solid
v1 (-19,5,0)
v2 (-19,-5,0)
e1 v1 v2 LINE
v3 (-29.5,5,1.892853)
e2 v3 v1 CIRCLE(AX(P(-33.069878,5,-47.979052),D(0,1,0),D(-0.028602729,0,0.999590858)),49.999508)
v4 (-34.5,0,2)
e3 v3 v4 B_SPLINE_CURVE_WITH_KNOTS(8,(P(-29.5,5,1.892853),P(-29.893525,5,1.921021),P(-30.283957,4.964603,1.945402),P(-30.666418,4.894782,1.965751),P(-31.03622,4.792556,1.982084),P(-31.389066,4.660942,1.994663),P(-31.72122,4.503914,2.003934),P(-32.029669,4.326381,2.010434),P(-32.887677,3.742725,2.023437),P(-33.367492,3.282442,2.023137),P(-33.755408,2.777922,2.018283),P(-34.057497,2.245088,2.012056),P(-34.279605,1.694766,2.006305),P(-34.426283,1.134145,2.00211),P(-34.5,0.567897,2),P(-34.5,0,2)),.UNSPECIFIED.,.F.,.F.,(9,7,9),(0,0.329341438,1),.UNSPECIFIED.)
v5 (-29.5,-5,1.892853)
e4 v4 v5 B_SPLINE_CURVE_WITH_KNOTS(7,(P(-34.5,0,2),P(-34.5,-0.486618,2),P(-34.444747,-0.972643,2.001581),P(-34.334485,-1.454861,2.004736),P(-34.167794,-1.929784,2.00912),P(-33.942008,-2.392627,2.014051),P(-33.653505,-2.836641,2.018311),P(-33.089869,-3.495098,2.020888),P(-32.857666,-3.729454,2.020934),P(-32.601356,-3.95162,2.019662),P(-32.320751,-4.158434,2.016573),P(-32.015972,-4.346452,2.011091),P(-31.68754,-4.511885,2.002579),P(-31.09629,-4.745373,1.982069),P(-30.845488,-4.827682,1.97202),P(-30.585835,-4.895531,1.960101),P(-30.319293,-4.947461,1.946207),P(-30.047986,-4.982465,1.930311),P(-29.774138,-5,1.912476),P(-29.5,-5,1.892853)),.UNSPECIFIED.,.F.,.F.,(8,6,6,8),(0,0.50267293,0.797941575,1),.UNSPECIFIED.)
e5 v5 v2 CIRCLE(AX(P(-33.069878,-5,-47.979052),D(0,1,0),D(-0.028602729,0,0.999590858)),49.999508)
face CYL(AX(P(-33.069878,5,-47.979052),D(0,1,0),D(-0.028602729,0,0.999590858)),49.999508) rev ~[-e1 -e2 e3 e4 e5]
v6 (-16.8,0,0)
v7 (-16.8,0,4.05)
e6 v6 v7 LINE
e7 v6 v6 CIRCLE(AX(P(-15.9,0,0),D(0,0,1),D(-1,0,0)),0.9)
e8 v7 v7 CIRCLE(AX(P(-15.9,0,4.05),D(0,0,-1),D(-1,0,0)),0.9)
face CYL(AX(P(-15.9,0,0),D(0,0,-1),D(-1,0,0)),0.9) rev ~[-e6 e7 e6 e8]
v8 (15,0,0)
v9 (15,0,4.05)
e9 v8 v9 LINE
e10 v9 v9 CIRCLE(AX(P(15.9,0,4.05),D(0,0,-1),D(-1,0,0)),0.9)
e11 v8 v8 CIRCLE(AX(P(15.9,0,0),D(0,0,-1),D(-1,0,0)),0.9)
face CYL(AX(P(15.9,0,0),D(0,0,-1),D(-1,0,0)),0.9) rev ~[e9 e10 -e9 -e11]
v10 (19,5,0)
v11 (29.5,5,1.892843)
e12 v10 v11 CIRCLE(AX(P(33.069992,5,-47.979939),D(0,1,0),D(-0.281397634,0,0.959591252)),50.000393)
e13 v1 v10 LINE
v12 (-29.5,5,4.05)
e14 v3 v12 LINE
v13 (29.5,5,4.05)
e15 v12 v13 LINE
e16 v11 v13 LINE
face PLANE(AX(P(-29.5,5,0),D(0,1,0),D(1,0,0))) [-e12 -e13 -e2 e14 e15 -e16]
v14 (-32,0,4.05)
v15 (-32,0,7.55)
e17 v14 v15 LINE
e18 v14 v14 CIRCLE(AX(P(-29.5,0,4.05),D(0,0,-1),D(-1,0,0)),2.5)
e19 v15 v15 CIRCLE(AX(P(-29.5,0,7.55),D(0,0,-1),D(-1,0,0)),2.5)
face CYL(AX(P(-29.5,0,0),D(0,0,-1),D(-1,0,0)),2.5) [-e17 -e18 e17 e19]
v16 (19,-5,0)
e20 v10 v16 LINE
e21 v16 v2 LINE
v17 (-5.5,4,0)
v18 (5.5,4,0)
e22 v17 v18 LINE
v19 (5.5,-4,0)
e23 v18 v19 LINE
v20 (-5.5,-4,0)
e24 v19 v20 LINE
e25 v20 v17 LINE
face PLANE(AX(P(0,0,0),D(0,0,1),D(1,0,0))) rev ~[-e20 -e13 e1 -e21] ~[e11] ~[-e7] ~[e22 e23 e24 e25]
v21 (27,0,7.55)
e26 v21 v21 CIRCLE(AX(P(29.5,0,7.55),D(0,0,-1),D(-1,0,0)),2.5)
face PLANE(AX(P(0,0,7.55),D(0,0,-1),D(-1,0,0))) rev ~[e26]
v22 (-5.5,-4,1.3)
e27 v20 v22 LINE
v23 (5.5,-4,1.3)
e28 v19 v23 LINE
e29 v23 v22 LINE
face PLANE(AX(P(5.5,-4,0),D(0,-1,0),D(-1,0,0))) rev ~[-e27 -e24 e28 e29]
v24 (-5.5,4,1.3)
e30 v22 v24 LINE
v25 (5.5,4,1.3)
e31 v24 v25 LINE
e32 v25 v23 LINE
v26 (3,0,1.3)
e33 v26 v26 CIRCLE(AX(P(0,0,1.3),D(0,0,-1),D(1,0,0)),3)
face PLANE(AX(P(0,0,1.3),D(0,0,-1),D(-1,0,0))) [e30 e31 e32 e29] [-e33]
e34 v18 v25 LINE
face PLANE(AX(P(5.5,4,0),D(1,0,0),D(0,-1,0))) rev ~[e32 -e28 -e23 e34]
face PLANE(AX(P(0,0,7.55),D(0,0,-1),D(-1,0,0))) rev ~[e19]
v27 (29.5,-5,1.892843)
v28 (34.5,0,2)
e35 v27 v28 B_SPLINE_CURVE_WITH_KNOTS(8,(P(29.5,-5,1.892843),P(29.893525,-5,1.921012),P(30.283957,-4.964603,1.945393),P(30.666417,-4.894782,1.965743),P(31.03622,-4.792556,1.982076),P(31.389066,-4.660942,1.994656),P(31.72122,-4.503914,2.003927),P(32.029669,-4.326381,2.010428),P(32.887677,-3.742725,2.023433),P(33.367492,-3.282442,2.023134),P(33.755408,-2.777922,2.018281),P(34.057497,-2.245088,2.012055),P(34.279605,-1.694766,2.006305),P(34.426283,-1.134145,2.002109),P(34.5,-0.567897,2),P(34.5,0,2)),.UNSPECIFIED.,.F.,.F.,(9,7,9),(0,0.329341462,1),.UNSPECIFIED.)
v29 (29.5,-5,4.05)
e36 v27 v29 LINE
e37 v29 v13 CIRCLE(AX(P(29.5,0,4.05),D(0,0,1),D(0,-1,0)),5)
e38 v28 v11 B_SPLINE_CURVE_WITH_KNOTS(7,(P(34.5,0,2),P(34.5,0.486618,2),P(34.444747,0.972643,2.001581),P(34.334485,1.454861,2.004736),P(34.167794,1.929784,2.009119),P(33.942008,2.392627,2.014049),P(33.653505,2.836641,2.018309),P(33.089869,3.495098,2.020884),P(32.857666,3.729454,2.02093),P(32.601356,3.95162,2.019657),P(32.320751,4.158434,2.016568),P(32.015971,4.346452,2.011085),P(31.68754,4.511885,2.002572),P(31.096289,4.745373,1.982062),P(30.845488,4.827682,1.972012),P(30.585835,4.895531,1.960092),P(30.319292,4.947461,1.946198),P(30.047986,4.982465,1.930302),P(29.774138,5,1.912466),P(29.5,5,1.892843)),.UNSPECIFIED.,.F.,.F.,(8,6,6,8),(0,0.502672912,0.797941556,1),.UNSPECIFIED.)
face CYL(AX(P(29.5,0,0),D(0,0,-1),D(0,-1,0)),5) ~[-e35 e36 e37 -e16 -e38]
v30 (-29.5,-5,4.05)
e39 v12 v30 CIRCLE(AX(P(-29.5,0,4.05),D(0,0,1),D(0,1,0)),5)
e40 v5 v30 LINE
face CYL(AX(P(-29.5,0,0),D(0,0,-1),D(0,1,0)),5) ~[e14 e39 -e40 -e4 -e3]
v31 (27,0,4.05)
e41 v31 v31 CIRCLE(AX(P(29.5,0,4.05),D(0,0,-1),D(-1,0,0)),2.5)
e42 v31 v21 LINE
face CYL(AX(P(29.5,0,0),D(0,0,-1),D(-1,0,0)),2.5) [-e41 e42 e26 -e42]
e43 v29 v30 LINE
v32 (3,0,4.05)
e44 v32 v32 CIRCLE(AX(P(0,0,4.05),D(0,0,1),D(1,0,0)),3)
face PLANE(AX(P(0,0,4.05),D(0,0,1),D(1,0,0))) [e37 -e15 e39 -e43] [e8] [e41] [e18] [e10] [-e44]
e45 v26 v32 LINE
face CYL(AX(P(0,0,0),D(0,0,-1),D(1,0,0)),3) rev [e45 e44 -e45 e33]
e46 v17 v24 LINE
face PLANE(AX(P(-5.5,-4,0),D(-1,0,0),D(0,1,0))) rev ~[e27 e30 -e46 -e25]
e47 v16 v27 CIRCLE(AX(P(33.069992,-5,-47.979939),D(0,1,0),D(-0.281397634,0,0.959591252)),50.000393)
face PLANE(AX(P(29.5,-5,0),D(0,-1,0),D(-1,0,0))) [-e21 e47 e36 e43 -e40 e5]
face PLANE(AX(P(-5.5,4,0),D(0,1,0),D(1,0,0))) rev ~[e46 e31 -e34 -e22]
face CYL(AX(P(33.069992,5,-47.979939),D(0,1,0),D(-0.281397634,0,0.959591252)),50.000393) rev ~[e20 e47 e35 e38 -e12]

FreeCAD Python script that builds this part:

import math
import FreeCAD as App
import Part
import Sketcher
from FreeCAD import Vector
Q = App.Units.Quantity

doc = App.newDocument("Part")
body = doc.addObject("PartDesign::Body", "Body")

# Sketch on XY plane
sketch1 = body.newObject("Sketcher::SketchObject", "Sketch")
sketch1.AttachmentSupport = (doc.getObject("XY_Plane"), [""])
sketch1.MapMode = "FlatFace"
sketch1.addGeometry(Part.LineSegment(Vector(29.5, 5, 0), Vector(-29.5, 5, 0)), False)
sketch1.addGeometry(Part.ArcOfCircle(Part.Circle(Vector(-29.5, 0, 0), Vector(0, 0, 1), 5), math.radians(90), math.radians(270)), False)
sketch1.addGeometry(Part.LineSegment(Vector(-29.5, -5, 0), Vector(29.5, -5, 0)), False)
sketch1.addGeometry(Part.ArcOfCircle(Part.Circle(Vector(29.5, 0, 0), Vector(0, 0, 1), 5), math.radians(-90), math.radians(90)), False)
sketch1.addGeometry(Part.Circle(Vector(-29.5, 0, 0), Vector(0, 0, 1), 2.5), False)
sketch1.addGeometry(Part.Circle(Vector(0, 0, 0), Vector(0, 0, 1), 3), False)
sketch1.addGeometry(Part.Circle(Vector(29.5, 0, 0), Vector(0, 0, 1), 2.5), False)
sketch1.addConstraint(Sketcher.Constraint("Tangent", 0, 2, 1, 1))
sketch1.addConstraint(Sketcher.Constraint("Tangent", 1, 2, 2, 1))
sketch1.addConstraint(Sketcher.Constraint("Tangent", 2, 2, 3, 1))
sketch1.addConstraint(Sketcher.Constraint("Tangent", 3, 2, 0, 1))
sketch1.addConstraint(Sketcher.Constraint("Horizontal", 0))
sketch1.addConstraint(Sketcher.Constraint("Horizontal", 2))
sketch1.addConstraint(Sketcher.Constraint("Coincident", 5, 3, -1, 1))
sketch1.addConstraint(Sketcher.Constraint("Coincident", 4, 3, 1, 3))
sketch1.addConstraint(Sketcher.Constraint("Coincident", 6, 3, 3, 3))
sketch1.addConstraint(Sketcher.Constraint("Equal", 4, 6))
sketch1.addConstraint(Sketcher.Constraint("Symmetric", 1, 3, 3, 3, -1, 1))
sketch1.addConstraint(Sketcher.Constraint("Diameter", 4, Q("5 mm")))
sketch1.addConstraint(Sketcher.Constraint("Diameter", 5, Q("6 mm")))
sketch1.addConstraint(Sketcher.Constraint("Radius", 1, Q("5 mm")))
sketch1.addConstraint(Sketcher.Constraint("DistanceX", 1, 3, -1, 1, Q("29.5 mm")))
pad1 = body.newObject("PartDesign::Pad", "Pad")
pad1.Profile = sketch1
pad1.Length = 4.05

# Sketch on XY plane
sketch2 = body.newObject("Sketcher::SketchObject", "Sketch001")
sketch2.AttachmentSupport = (doc.getObject("XY_Plane"), [""])
sketch2.MapMode = "FlatFace"
sketch2.addGeometry(Part.LineSegment(Vector(5.5, 4, 0), Vector(5.5, -4, 0)), False)
sketch2.addGeometry(Part.LineSegment(Vector(5.5, -4, 0), Vector(-5.5, -4, 0)), False)
sketch2.addGeometry(Part.LineSegment(Vector(-5.5, -4, 0), Vector(-5.5, 4, 0)), False)
sketch2.addGeometry(Part.LineSegment(Vector(-5.5, 4, 0), Vector(5.5, 4, 0)), False)
sketch2.addConstraint(Sketcher.Constraint("Coincident", 0, 2, 1, 1))
sketch2.addConstraint(Sketcher.Constraint("Coincident", 1, 2, 2, 1))
sketch2.addConstraint(Sketcher.Constraint("Coincident", 2, 2, 3, 1))
sketch2.addConstraint(Sketcher.Constraint("Coincident", 3, 2, 0, 1))
sketch2.addConstraint(Sketcher.Constraint("Vertical", 0))
sketch2.addConstraint(Sketcher.Constraint("Horizontal", 1))
sketch2.addConstraint(Sketcher.Constraint("Vertical", 2))
sketch2.addConstraint(Sketcher.Constraint("Horizontal", 3))
sketch2.addConstraint(Sketcher.Constraint("Symmetric", 0, 2, 2, 2, -1, 1))
sketch2.addConstraint(Sketcher.Constraint("DistanceX", 1, 2, 1, 1, Q("11 mm")))
sketch2.addConstraint(Sketcher.Constraint("DistanceY", 0, 2, 0, 1, Q("8 mm")))
pocket1 = body.newObject("PartDesign::Pocket", "Pocket")
pocket1.Profile = sketch2
pocket1.Length = 1.3
pocket1.Reversed = True

# Sketch on XY plane
sketch3 = body.newObject("Sketcher::SketchObject", "Sketch002")
sketch3.AttachmentSupport = (doc.getObject("XY_Plane"), [""])
sketch3.MapMode = "FlatFace"
sketch3.addGeometry(Part.Circle(Vector(29.5, 0, 0), Vector(0, 0, 1), 2.5), False)
sketch3.addGeometry(Part.Circle(Vector(-29.5, 0, 0), Vector(0, 0, 1), 2.5), False)
sketch3.addConstraint(Sketcher.Constraint("Equal", 0, 1))
sketch3.addConstraint(Sketcher.Constraint("Symmetric", 0, 3, 1, 3, -1, 1))
sketch3.addConstraint(Sketcher.Constraint("PointOnObject", 0, 3, -1))
sketch3.addConstraint(Sketcher.Constraint("Diameter", 0, Q("5 mm")))
sketch3.addConstraint(Sketcher.Constraint("DistanceX", 1, 3, 0, 3, Q("59 mm")))
pad2 = body.newObject("PartDesign::Pad", "Pad001")
pad2.Profile = sketch3
pad2.Length = 7.55

# Sketch on XZ plane
sketch4 = body.newObject("Sketcher::SketchObject", "Sketch003")
sketch4.AttachmentSupport = (doc.getObject("XZ_Plane"), [""])
sketch4.MapMode = "FlatFace"
sketch4.AttachmentOffset = App.Placement(Vector(0, 0, -5), App.Rotation())
sketch4.addGeometry(Part.ArcOfCircle(Part.Circle(Vector(-33.0699, -47.9795, 0), Vector(0, 0, 1), 49.999956), math.radians(73.656322), math.radians(91.638999)), False)
sketch4.addGeometry(Part.LineSegment(Vector(-19, 0, 0), Vector(-34.5, 0, 0)), False)
sketch4.addGeometry(Part.LineSegment(Vector(-34.5, 0, 0), Vector(-34.5, 2, 0)), False)
sketch4.addGeometry(Part.LineSegment(Vector(34.5, 2, 0), Vector(34.5, 0, 0)), False)
sketch4.addGeometry(Part.LineSegment(Vector(34.5, 0, 0), Vector(19, 0, 0)), False)
sketch4.addGeometry(Part.ArcOfCircle(Part.Circle(Vector(33.0699, -47.9795, 0), Vector(0, 0, 1), 49.999945), math.radians(88.361001), math.radians(106.343678)), False)
sketch4.addConstraint(Sketcher.Constraint("Coincident", 0, 1, 1, 1))
sketch4.addConstraint(Sketcher.Constraint("Coincident", 1, 2, 2, 1))
sketch4.addConstraint(Sketcher.Constraint("Coincident", 2, 2, 0, 2))
sketch4.addConstraint(Sketcher.Constraint("Coincident", 3, 2, 4, 1))
sketch4.addConstraint(Sketcher.Constraint("Coincident", 4, 2, 5, 2))
sketch4.addConstraint(Sketcher.Constraint("Coincident", 5, 1, 3, 1))
sketch4.addConstraint(Sketcher.Constraint("Horizontal", 1))
sketch4.addConstraint(Sketcher.Constraint("Vertical", 2))
sketch4.addConstraint(Sketcher.Constraint("Vertical", 3))
sketch4.addConstraint(Sketcher.Constraint("Horizontal", 4))
sketch4.addConstraint(Sketcher.Constraint("Equal", 0, 5))
sketch4.addConstraint(Sketcher.Constraint("Symmetric", 1, 2, 3, 2, -1, 1))
sketch4.addConstraint(Sketcher.Constraint("Symmetric", 0, 3, 5, 3, -2))
sketch4.addConstraint(Sketcher.Constraint("PointOnObject", 0, 1, -1))
sketch4.addConstraint(Sketcher.Constraint("Radius", 0, Q("50 mm")))
sketch4.addConstraint(Sketcher.Constraint("DistanceY", 2, 1, 2, 2, Q("2 mm")))
sketch4.addConstraint(Sketcher.Constraint("DistanceX", 0, 1, -1, 1, Q("19 mm")))
sketch4.addConstraint(Sketcher.Constraint("DistanceX", 1, 2, 1, 1, Q("15.5 mm")))
pocket2 = body.newObject("PartDesign::Pocket", "Pocket001")
pocket2.Profile = sketch4
pocket2.Type = "ThroughAll"
pocket2.Reversed = True

# Sketch on XY plane
sketch5 = body.newObject("Sketcher::SketchObject", "Sketch004")
sketch5.AttachmentSupport = (doc.getObject("XY_Plane"), [""])
sketch5.MapMode = "FlatFace"
sketch5.addGeometry(Part.Circle(Vector(-15.9, 0, 0), Vector(0, 0, 1), 0.9), False)
sketch5.addGeometry(Part.Circle(Vector(15.9, 0, 0), Vector(0, 0, 1), 0.9), False)
sketch5.addConstraint(Sketcher.Constraint("Equal", 0, 1))
sketch5.addConstraint(Sketcher.Constraint("Symmetric", 0, 3, 1, 3, -1, 1))
sketch5.addConstraint(Sketcher.Constraint("PointOnObject", 0, 3, -1))
sketch5.addConstraint(Sketcher.Constraint("Diameter", 0, Q("1.8 mm")))
sketch5.addConstraint(Sketcher.Constraint("DistanceX", 0, 3, -1, 1, Q("15.9 mm")))
pocket3 = body.newObject("PartDesign::Pocket", "Pocket002")
pocket3.Profile = sketch5
pocket3.Type = "ThroughAll"
pocket3.Reversed = True

doc.recompute()
